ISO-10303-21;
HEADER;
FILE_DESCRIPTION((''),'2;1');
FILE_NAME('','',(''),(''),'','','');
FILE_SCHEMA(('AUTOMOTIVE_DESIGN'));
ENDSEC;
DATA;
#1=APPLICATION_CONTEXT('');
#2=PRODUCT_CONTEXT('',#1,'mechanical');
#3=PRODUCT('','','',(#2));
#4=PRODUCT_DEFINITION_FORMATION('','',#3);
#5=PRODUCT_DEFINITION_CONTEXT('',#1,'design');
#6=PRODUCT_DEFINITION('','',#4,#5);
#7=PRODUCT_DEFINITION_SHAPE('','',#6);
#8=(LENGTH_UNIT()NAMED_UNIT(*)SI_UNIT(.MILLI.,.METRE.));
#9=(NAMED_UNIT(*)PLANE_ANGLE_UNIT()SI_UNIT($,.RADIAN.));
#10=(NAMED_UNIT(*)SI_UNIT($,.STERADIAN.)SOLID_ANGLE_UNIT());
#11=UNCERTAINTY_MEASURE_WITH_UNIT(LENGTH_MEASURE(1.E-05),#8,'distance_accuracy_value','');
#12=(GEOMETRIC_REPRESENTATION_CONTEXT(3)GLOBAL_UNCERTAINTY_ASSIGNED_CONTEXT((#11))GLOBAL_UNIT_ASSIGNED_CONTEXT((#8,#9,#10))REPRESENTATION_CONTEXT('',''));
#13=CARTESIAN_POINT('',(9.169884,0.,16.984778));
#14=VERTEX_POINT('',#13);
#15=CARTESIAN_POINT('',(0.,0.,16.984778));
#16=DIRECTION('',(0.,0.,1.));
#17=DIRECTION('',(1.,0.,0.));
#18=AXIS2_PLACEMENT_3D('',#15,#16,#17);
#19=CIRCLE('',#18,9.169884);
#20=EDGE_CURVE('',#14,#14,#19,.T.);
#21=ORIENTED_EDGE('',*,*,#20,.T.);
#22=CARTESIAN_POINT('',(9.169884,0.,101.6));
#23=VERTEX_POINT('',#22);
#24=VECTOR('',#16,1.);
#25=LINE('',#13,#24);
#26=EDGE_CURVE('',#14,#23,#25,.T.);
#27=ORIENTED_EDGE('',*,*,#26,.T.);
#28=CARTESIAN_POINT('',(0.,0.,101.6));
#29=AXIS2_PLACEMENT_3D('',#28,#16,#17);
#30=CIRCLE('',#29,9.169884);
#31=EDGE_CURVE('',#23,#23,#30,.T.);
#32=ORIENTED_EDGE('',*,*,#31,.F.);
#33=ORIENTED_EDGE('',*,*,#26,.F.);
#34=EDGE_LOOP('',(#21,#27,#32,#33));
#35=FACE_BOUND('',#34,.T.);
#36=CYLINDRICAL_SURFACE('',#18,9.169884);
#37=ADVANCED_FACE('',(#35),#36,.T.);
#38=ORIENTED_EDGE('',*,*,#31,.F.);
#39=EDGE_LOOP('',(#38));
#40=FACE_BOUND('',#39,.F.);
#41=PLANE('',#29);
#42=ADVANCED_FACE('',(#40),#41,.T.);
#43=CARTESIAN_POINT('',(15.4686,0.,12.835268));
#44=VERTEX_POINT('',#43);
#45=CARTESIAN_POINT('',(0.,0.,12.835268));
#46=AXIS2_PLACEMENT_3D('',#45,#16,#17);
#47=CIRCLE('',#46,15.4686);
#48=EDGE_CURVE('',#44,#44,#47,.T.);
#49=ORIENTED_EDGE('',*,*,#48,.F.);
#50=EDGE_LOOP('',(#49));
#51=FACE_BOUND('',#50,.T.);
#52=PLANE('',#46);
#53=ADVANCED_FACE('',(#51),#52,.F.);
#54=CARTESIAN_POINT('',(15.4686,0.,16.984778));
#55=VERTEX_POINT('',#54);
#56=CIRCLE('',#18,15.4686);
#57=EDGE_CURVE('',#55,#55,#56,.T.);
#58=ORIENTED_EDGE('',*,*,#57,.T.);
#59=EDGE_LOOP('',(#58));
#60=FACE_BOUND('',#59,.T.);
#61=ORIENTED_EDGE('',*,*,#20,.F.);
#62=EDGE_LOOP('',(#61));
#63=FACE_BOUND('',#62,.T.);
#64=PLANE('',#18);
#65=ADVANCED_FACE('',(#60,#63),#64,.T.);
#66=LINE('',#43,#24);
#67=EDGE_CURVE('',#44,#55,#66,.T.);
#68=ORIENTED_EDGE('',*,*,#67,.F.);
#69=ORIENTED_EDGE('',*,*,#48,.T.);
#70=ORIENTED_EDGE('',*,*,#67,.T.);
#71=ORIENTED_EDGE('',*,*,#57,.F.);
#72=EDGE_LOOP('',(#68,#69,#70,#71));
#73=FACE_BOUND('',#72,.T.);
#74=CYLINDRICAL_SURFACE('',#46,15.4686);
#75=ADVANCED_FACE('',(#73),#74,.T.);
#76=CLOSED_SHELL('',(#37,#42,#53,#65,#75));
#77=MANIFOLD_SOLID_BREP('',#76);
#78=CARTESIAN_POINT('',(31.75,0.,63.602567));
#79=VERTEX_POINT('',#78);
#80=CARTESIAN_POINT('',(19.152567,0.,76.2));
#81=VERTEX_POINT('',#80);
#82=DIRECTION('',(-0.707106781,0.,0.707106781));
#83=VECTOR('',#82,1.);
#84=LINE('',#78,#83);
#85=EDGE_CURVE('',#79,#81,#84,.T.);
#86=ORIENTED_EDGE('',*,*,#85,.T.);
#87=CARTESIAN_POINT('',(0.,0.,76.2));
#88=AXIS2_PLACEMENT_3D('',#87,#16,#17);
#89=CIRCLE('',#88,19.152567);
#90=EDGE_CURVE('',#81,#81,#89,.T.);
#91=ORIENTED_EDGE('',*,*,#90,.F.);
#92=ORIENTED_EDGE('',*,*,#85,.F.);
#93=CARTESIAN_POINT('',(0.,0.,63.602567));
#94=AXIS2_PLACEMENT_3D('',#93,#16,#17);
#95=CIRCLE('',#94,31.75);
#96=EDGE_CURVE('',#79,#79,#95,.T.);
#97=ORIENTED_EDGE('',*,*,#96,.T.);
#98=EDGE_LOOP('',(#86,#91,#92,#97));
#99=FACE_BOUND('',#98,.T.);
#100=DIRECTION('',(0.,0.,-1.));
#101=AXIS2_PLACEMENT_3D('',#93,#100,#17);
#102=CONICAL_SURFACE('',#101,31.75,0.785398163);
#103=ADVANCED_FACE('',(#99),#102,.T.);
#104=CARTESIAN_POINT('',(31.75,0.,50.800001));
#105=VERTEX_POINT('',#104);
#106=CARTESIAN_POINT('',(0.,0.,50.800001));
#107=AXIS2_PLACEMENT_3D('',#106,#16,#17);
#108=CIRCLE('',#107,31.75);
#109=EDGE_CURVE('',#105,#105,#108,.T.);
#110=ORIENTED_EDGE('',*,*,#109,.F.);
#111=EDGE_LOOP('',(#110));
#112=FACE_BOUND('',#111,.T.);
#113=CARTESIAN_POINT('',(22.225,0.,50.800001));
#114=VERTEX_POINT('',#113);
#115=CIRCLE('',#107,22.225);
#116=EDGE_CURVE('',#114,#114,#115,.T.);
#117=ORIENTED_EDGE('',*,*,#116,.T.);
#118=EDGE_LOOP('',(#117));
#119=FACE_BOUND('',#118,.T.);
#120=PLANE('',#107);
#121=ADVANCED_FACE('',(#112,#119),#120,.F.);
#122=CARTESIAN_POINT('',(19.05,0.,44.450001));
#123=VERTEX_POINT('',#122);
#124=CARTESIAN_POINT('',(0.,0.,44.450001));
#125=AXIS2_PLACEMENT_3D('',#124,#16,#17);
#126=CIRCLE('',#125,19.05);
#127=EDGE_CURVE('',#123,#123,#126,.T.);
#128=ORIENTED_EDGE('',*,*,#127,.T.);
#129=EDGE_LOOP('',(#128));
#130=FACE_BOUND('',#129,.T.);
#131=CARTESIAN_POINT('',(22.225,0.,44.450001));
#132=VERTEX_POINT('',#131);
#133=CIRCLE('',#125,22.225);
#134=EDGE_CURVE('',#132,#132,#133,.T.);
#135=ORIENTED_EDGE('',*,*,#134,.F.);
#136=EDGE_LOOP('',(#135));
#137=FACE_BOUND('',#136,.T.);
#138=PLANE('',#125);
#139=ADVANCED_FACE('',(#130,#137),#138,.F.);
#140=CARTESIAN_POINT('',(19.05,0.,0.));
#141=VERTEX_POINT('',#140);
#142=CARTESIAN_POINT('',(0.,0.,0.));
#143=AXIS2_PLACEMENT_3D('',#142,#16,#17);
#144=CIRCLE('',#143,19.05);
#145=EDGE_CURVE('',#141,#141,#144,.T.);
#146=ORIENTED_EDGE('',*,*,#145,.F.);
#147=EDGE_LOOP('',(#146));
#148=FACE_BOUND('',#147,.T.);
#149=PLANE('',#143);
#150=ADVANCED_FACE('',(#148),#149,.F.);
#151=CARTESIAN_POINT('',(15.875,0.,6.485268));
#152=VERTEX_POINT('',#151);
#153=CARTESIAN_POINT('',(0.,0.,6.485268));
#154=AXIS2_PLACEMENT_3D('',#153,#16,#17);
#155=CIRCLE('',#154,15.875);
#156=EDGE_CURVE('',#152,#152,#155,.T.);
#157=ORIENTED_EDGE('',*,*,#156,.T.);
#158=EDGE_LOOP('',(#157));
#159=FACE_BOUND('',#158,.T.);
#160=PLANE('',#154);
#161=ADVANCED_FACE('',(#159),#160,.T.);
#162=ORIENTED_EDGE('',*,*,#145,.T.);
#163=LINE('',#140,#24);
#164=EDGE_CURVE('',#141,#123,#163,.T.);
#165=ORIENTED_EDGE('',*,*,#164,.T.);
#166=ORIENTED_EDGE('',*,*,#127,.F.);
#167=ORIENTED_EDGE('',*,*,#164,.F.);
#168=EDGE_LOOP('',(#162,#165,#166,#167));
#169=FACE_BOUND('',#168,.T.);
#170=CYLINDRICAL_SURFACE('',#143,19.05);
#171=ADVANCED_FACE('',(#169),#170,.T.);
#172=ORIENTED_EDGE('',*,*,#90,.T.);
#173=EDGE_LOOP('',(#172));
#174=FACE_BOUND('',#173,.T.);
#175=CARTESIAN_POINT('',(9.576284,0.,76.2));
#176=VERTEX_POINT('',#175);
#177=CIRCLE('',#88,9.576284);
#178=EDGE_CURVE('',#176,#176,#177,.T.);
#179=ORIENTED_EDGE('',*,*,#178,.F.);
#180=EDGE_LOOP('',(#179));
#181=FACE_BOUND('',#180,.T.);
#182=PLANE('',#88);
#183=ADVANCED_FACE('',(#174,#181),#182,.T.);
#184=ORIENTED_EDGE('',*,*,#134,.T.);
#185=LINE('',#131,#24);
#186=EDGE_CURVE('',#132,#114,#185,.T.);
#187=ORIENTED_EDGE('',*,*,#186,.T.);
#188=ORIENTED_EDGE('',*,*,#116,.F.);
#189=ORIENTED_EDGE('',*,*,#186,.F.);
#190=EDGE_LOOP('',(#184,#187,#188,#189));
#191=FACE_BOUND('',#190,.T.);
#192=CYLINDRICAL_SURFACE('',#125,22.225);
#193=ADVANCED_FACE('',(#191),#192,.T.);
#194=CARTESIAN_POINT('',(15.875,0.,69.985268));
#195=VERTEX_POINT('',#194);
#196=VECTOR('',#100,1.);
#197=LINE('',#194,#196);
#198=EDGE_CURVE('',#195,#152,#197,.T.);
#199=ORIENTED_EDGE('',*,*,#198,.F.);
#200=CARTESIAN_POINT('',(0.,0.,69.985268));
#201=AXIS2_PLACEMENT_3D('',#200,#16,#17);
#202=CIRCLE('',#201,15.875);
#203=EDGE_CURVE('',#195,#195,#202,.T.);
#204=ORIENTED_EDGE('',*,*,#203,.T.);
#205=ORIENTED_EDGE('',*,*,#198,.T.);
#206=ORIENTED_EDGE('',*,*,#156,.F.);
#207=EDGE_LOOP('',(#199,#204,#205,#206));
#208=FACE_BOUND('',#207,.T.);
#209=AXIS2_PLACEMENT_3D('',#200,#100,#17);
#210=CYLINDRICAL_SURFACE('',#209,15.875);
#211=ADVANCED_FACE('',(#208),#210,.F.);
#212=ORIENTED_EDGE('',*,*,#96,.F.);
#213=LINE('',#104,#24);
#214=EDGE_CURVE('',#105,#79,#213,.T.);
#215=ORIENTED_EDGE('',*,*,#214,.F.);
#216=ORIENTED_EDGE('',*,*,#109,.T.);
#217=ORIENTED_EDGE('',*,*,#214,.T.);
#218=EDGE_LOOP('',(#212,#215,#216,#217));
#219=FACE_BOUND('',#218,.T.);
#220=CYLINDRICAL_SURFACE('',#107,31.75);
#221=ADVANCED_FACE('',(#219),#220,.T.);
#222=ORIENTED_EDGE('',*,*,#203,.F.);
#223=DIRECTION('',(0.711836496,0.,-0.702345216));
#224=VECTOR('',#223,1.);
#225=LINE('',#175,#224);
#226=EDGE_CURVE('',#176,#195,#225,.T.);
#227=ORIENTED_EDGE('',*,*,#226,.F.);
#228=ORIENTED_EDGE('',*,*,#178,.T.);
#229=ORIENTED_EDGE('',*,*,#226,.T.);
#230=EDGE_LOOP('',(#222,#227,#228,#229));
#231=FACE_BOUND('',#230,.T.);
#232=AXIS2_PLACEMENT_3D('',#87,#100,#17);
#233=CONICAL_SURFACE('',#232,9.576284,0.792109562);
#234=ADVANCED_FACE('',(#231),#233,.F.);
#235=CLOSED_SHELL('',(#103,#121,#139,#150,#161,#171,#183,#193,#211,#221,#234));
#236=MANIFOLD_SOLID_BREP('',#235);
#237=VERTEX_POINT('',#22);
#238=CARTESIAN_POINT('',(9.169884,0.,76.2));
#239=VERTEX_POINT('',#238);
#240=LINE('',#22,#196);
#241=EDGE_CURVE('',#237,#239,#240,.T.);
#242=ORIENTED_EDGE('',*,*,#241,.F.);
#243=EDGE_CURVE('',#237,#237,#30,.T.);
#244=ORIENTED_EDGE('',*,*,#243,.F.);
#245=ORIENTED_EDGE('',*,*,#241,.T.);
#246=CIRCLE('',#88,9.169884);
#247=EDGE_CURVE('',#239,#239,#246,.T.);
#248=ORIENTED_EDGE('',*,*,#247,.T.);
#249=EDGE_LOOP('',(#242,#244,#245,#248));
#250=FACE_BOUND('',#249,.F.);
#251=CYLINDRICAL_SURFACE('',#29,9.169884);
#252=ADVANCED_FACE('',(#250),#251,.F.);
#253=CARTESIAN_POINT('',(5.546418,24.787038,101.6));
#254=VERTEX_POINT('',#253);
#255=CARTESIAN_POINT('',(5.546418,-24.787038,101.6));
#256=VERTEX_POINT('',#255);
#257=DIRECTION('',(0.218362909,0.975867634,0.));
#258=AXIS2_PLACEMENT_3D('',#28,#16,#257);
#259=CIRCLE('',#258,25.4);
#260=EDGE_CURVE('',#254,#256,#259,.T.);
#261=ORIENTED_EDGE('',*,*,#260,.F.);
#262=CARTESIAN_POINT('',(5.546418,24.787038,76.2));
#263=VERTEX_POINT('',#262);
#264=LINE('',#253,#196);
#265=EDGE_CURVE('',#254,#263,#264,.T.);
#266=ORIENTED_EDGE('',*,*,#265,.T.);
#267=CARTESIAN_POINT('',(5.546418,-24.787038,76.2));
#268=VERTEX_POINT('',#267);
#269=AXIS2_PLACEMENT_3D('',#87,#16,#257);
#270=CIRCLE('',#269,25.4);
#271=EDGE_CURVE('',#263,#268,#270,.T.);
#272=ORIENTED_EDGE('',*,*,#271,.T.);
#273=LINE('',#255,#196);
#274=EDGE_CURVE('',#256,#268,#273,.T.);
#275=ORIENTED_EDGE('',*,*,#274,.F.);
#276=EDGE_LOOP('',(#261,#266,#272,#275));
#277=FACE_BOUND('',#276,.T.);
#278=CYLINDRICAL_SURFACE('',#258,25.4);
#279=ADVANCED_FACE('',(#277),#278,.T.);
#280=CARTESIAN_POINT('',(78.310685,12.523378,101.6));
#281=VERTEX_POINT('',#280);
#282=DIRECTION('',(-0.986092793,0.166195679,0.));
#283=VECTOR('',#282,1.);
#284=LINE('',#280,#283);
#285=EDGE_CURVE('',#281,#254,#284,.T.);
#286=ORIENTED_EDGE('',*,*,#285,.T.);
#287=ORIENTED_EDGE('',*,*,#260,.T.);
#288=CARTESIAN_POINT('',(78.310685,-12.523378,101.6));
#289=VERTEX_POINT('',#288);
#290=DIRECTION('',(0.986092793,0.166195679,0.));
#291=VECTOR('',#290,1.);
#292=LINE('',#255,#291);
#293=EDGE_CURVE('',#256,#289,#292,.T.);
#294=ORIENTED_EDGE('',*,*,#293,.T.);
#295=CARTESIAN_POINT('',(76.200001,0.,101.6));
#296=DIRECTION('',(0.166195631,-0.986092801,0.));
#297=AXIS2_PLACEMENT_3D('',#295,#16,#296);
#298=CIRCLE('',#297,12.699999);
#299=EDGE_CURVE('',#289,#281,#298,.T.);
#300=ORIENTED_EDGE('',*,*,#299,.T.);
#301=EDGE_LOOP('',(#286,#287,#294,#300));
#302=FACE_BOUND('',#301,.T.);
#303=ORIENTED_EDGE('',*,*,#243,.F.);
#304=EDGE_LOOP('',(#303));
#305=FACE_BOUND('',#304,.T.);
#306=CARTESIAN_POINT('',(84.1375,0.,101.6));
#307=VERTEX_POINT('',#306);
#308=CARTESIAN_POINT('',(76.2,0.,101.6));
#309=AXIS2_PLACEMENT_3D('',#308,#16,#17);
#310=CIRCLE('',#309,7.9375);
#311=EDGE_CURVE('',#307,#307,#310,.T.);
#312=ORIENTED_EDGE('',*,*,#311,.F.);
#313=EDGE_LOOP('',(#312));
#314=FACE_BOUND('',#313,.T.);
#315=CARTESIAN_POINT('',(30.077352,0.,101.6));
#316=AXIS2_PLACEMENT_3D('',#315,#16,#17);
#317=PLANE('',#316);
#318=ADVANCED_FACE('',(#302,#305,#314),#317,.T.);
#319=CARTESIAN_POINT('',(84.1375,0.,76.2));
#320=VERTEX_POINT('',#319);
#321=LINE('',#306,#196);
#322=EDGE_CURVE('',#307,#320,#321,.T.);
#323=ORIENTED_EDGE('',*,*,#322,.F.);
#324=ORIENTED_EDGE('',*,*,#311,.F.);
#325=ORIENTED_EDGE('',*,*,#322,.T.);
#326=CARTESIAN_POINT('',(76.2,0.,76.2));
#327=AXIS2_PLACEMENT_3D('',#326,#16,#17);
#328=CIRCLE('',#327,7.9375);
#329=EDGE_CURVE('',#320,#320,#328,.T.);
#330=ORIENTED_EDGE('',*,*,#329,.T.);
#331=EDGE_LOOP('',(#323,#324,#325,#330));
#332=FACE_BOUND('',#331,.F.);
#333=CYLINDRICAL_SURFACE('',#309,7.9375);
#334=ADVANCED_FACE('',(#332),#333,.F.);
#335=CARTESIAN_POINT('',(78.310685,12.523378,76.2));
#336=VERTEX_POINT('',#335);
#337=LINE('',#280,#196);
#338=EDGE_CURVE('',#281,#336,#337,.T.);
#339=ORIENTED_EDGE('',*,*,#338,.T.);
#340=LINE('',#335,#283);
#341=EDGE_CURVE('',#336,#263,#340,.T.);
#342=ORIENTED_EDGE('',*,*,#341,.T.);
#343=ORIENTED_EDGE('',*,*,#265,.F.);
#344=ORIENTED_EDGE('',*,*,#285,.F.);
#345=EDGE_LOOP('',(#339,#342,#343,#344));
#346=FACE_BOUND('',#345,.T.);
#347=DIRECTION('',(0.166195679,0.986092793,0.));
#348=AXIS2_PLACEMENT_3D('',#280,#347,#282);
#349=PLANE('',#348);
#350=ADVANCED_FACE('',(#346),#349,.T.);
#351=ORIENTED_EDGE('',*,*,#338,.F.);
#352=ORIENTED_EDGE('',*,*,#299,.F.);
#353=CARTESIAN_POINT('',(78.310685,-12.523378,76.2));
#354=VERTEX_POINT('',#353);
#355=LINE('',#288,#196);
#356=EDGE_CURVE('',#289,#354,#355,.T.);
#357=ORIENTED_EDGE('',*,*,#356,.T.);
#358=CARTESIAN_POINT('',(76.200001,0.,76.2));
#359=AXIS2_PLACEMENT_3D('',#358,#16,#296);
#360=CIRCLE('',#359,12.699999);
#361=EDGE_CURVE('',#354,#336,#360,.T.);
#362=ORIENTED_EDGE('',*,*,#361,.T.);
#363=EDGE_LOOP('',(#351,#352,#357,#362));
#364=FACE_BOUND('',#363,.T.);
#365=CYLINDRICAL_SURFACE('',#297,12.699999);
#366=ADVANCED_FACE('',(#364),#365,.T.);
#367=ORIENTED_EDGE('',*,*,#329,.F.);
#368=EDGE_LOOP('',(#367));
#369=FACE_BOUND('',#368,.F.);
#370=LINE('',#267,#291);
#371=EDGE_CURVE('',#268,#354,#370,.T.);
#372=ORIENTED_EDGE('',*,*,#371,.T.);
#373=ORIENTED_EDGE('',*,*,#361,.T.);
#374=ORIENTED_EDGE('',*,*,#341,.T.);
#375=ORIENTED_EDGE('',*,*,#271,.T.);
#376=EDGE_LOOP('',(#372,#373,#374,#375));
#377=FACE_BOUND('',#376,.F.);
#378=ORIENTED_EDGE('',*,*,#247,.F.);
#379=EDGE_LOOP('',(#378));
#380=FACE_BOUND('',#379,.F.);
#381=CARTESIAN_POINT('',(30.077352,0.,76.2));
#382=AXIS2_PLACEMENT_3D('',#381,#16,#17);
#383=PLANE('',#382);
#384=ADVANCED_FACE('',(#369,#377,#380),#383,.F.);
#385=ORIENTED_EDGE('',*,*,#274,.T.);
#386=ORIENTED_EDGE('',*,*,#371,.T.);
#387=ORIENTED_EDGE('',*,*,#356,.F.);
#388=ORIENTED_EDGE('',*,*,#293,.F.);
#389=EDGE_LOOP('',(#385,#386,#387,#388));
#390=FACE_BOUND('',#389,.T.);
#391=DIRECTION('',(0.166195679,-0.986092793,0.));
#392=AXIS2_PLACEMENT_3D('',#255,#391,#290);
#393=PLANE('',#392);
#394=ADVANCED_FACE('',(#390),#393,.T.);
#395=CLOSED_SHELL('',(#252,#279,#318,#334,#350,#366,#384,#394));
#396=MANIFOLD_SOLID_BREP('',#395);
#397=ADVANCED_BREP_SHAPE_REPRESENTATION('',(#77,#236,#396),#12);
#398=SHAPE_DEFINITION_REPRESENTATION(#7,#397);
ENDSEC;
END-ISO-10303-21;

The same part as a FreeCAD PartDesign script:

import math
import FreeCAD as App
import Part
import Sketcher

V = App.Vector
Q = App.Units.Quantity

doc = App.newDocument("Part")
params = doc.addObject("Spreadsheet::Sheet", "Params")
for row, (alias, value) in enumerate([
    ("sketch1_height", "2.5 in"),
    ("sketch1_width", "0.75 in"),
    ("sketch1_height2", "1.75 in"),
    ("sketch1_width2", "0.625 in"),
    ("sketch1_width3", "0.125 in"),
    ("revolution_angle", "360 deg"),
    ("sketch2_width", "0.609 in"),
    ("revolution2_angle", "360 deg"),
    ("sketch3_radius", "1 in"),
    ("sketch3_radius2", "0.5 in"),
    ("sketch3_diameter", "0.625 in"),
    ("pad1_length", "1 in"),
], start=1):
    params.set(f"A{row}", alias)
    params.set(f"B{row}", "=" + value)
    params.setAlias(f"B{row}", alias)

body = doc.addObject("PartDesign::Body", "Body")

sketch1 = body.newObject("Sketcher::SketchObject", "Sketch")
sketch1.AttachmentSupport = (doc.getObject("XZ_Plane"), [""])
sketch1.MapMode = "FlatFace"
sketch1.addGeometry([
    Part.LineSegment(V(19.2, 76.2, 0), V(9.6, 76.2, 0)),
    Part.LineSegment(V(9.6, 76.2, 0), V(15.9, 70, 0)),
    Part.LineSegment(V(15.9, 70, 0), V(15.9, 6.5, 0)),
    Part.LineSegment(V(15.9, 6.5, 0), V(0, 6.5, 0)),
    Part.LineSegment(V(0, 6.5, 0), V(0, 0, 0)),
    Part.LineSegment(V(0, 0, 0), V(19.1, 0, 0)),
    Part.LineSegment(V(19.1, 0, 0), V(19.1, 44.5, 0)),
    Part.LineSegment(V(19.1, 44.5, 0), V(22.2, 44.5, 0)),
    Part.LineSegment(V(22.2, 44.5, 0), V(22.2, 50.8, 0)),
    Part.LineSegment(V(22.2, 50.8, 0), V(31.8, 50.8, 0)),
    Part.LineSegment(V(31.8, 50.8, 0), V(31.8, 63.6, 0)),
    Part.LineSegment(V(31.8, 63.6, 0), V(19.2, 76.2, 0)),
], False)
sketch1.addConstraint([
    Sketcher.Constraint("Coincident", 0, 2, 1, 1),
    Sketcher.Constraint("Coincident", 1, 2, 2, 1),
    Sketcher.Constraint("Coincident", 2, 2, 3, 1),
    Sketcher.Constraint("Coincident", 3, 2, 4, 1),
    Sketcher.Constraint("Coincident", 4, 2, 5, 1),
    Sketcher.Constraint("Coincident", 5, 2, 6, 1),
    Sketcher.Constraint("Coincident", 6, 2, 7, 1),
    Sketcher.Constraint("Coincident", 7, 2, 8, 1),
    Sketcher.Constraint("Coincident", 8, 2, 9, 1),
    Sketcher.Constraint("Coincident", 9, 2, 10, 1),
    Sketcher.Constraint("Coincident", 10, 2, 11, 1),
    Sketcher.Constraint("Coincident", 11, 2, 0, 1),
    Sketcher.Constraint("Horizontal", 0),
    Sketcher.Constraint("Vertical", 2),
    Sketcher.Constraint("Horizontal", 3),
    Sketcher.Constraint("Vertical", 4),
    Sketcher.Constraint("Horizontal", 5),
    Sketcher.Constraint("Vertical", 6),
    Sketcher.Constraint("Horizontal", 7),
    Sketcher.Constraint("Vertical", 8),
    Sketcher.Constraint("Horizontal", 9),
    Sketcher.Constraint("Vertical", 10),
    Sketcher.Constraint("Coincident", 4, 2, -1, 1),
    Sketcher.Constraint("DistanceY", 2, 2, 2, 1, Q("2.5 in")),
    Sketcher.Constraint("DistanceY", -1, 1, 0, 2, Q("3 in")),
    Sketcher.Constraint("DistanceY", -1, 1, 8, 2, Q("2 in")),
    Sketcher.Constraint("Angle", 11, Q("135 deg")),
    Sketcher.Constraint("DistanceX", 5, 1, 5, 2, Q("0.75 in")),
    Sketcher.Constraint("DistanceY", 6, 1, 6, 2, Q("1.75 in")),
    Sketcher.Constraint("DistanceX", 6, 2, 9, 2, Q("0.5 in")),
    Sketcher.Constraint("DistanceX", 3, 2, 3, 1, Q("0.625 in")),
    Sketcher.Constraint("DistanceX", 7, 1, 7, 2, Q("0.125 in")),
    Sketcher.Constraint("DistanceY", 10, 2, 1, 2, 6.382701),
    Sketcher.Constraint("Distance", 11, 17.815461),
    Sketcher.Constraint("DistanceX", 0, 2, 0, 1, 9.576283),
])
sketch1.setExpression("Constraints[23]", "Params.sketch1_height")
sketch1.setExpression("Constraints[27]", "Params.sketch1_width")
sketch1.setExpression("Constraints[28]", "Params.sketch1_height2")
sketch1.setExpression("Constraints[30]", "Params.sketch1_width2")
sketch1.setExpression("Constraints[31]", "Params.sketch1_width3")
revolution = body.newObject("PartDesign::Revolution", "Revolution")
revolution.Profile = sketch1
revolution.ReferenceAxis = (sketch1, ["V_Axis"])
revolution.setExpression("Angle", "Params.revolution_angle")
body2 = doc.addObject("PartDesign::Body", "Body001")

sketch2 = body2.newObject("Sketcher::SketchObject", "Sketch001")
sketch2.AttachmentSupport = (doc.getObject("XZ_Plane001"), [""])
sketch2.MapMode = "FlatFace"
sketch2.addGeometry([
    Part.LineSegment(V(9.2, 17, 0), V(9.2, 101.6, 0)),
    Part.LineSegment(V(9.2, 101.6, 0), V(0, 101.6, 0)),
    Part.LineSegment(V(0, 101.6, 0), V(0, 12.8, 0)),
    Part.LineSegment(V(0, 12.8, 0), V(15.5, 12.8, 0)),
    Part.LineSegment(V(15.5, 12.8, 0), V(15.5, 17, 0)),
    Part.LineSegment(V(15.5, 17, 0), V(9.2, 17, 0)),
], False)
sketch2.addConstraint([
    Sketcher.Constraint("Coincident", 0, 2, 1, 1),
    Sketcher.Constraint("Coincident", 1, 2, 2, 1),
    Sketcher.Constraint("Coincident", 2, 2, 3, 1),
    Sketcher.Constraint("Coincident", 3, 2, 4, 1),
    Sketcher.Constraint("Coincident", 4, 2, 5, 1),
    Sketcher.Constraint("Coincident", 5, 2, 0, 1),
    Sketcher.Constraint("Vertical", 0),
    Sketcher.Constraint("Horizontal", 1),
    Sketcher.Constraint("Vertical", 2),
    Sketcher.Constraint("Horizontal", 3),
    Sketcher.Constraint("Vertical", 4),
    Sketcher.Constraint("Horizontal", 5),
    Sketcher.Constraint("PointOnObject", 1, 2, -2),
    Sketcher.Constraint("DistanceY", -1, 1, 0, 2, Q("4 in")),
    Sketcher.Constraint("DistanceX", 3, 1, 3, 2, Q("0.609 in")),
    Sketcher.Constraint("DistanceY", 0, 1, 0, 2, 84.615222),
    Sketcher.Constraint("DistanceY", 2, 2, 2, 1, 88.764732),
    Sketcher.Constraint("DistanceX", 1, 2, 1, 1, 9.169884),
])
sketch2.setExpression("Constraints[14]", "Params.sketch2_width")
revolution2 = body2.newObject("PartDesign::Revolution", "Revolution001")
revolution2.Profile = sketch2
revolution2.ReferenceAxis = (sketch2, ["V_Axis"])
revolution2.setExpression("Angle", "Params.revolution2_angle")
body3 = doc.addObject("PartDesign::Body", "Body002")

sketch3 = body3.newObject("Sketcher::SketchObject", "Sketch002")
sketch3.AttachmentSupport = (doc.getObject("XY_Plane002"), [""])
sketch3.MapMode = "FlatFace"
sketch3.AttachmentOffset = App.Placement(V(0, 0, 4 * 25.4), App.Rotation())
sketch3.addGeometry([
    Part.LineSegment(V(78, 13, 0), V(6, 25, 0)),
    Part.ArcOfCircle(Part.Circle(V(0, 0, 0), V(0, 0, 1), 25), math.radians(77), math.radians(283)),
    Part.LineSegment(V(6, -25, 0), V(78, -13, 0)),
    Part.ArcOfCircle(Part.Circle(V(76, 0, 0), V(0, 0, 1), 13), math.radians(-80), math.radians(80)),
    Part.Circle(V(0, 0, 0), V(0, 0, 1), 9),
    Part.Circle(V(76, 0, 0), V(0, 0, 1), 8),
], False)
sketch3.addConstraint([
    Sketcher.Constraint("Coincident", 0, 2, 1, 1),
    Sketcher.Constraint("Coincident", 1, 2, 2, 1),
    Sketcher.Constraint("Tangent", 2, 2, 3, 1),
    Sketcher.Constraint("Tangent", 3, 2, 0, 1),
    Sketcher.Constraint("Coincident", 1, 3, -1, 1),
    Sketcher.Constraint("Coincident", 4, 3, -1, 1),
    Sketcher.Constraint("Coincident", 5, 3, 3, 3),
    Sketcher.Constraint("Symmetric", 2, 2, 3, 2, -1),
    Sketcher.Constraint("Radius", 1, Q("1 in")),
    Sketcher.Constraint("Radius", 3, Q("0.5 in")),
    Sketcher.Constraint("Diameter", 5, Q("0.625 in")),
    Sketcher.Constraint("DistanceX", -1, 1, 3, 3, Q("3 in")),
    Sketcher.Constraint("Diameter", 4, 18.339768),
    Sketcher.Constraint("DistanceX", -1, 1, 1, 2, 5.546418),
])
sketch3.setExpression("Constraints[8]", "Params.sketch3_radius")
sketch3.setExpression("Constraints[9]", "Params.sketch3_radius2")
sketch3.setExpression("Constraints[10]", "Params.sketch3_diameter")
pad1 = body3.newObject("PartDesign::Pad", "Pad")
pad1.Profile = sketch3
pad1.setExpression("Length", "Params.pad1_length")
pad1.Reversed = True

doc.recompute()
